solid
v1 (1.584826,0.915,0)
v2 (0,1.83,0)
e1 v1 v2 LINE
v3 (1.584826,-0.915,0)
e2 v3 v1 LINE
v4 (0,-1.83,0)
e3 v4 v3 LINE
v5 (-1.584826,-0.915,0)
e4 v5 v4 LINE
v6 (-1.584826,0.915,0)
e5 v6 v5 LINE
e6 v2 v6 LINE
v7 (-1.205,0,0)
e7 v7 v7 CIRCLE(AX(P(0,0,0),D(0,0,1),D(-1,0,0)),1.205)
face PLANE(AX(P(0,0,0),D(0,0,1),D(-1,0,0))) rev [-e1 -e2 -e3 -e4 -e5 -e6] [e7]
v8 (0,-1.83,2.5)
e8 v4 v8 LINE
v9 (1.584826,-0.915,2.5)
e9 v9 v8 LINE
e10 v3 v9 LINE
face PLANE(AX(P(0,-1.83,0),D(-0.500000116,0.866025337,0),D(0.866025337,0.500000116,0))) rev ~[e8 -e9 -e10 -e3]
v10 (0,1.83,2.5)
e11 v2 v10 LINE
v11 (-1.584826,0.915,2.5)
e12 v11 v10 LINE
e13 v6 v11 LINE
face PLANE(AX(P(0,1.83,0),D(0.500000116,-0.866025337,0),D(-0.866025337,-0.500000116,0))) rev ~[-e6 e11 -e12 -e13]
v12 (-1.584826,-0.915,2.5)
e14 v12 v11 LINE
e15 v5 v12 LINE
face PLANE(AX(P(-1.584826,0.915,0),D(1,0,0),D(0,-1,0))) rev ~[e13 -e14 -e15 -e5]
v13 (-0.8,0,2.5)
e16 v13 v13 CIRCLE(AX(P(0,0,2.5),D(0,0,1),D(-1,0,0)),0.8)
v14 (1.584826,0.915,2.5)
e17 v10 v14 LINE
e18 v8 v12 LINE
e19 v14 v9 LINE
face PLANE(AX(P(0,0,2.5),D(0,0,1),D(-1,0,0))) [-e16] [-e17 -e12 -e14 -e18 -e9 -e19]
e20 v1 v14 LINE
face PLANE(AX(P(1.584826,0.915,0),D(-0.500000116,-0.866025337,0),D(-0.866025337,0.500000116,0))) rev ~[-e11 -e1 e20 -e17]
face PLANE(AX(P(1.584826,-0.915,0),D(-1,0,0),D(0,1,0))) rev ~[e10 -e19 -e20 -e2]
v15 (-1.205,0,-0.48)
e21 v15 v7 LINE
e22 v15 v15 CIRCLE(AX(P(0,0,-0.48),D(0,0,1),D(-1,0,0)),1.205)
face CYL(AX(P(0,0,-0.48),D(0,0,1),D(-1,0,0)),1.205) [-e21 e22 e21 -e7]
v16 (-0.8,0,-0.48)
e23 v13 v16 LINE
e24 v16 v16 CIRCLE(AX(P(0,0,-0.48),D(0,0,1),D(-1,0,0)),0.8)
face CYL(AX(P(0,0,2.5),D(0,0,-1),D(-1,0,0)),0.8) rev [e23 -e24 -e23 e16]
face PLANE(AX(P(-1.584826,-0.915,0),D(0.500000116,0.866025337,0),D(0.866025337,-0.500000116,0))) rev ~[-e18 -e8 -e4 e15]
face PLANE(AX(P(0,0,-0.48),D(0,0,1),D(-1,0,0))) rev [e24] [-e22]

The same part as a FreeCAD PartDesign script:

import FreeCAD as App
import Part
import Sketcher
Q = App.Units.Quantity


def add_polygon(sketch, points):
    """Adds a closed chain of lines whose ends are joined by coincident constraints."""
    first, n = sketch.GeometryCount, len(points)
    for a, b in zip(points, points[1:] + points[:1]):
        sketch.addGeometry(Part.LineSegment(App.Vector(*a, 0), App.Vector(*b, 0)), False)
    for i in range(n):
        sketch.addConstraint(Sketcher.Constraint("Coincident", first + i, 2, first + (i + 1) % n, 1))

doc = App.newDocument("Part")
body = doc.addObject("PartDesign::Body", "Body")

# Sketch on XZ plane
sketch1 = body.newObject("Sketcher::SketchObject", "Sketch")
sketch1.AttachmentSupport = (doc.getObject("XZ_Plane"), [""])
sketch1.MapMode = "FlatFace"
add_polygon(sketch1, [(-0.8, -0.48), (-0.8, 2.5), (-1.83, 2.5), (-1.83, 0), (-1.21, 0), (-1.21, -0.48)])  # lines 0-5
sketch1.addConstraint([
    Sketcher.Constraint("Vertical", 0),
    Sketcher.Constraint("Horizontal", 1),
    Sketcher.Constraint("Vertical", 2),
    Sketcher.Constraint("Horizontal", 3),
    Sketcher.Constraint("Vertical", 4),
    Sketcher.Constraint("Horizontal", 5),
    Sketcher.Constraint("PointOnObject", 2, 2, -1),
    Sketcher.Constraint("DistanceY", 2, 2, 2, 1, Q("2.5 mm")),
    Sketcher.Constraint("DistanceX", 1, 2, 1, 1, Q("1.03 mm")),
    Sketcher.Constraint("DistanceY", 0, 1, 0, 2, Q("2.98 mm")),
    Sketcher.Constraint("DistanceX", 0, 2, -1, 1, Q("0.8 mm")),
    Sketcher.Constraint("DistanceX", 3, 1, 3, 2, Q("0.625 mm")),
])
revolution = body.newObject("PartDesign::Revolution", "Revolution")
revolution.Profile = sketch1
revolution.ReferenceAxis = (sketch1, ["V_Axis"])
revolution.Angle = 360

# Sketch on XY plane
sketch2 = body.newObject("Sketcher::SketchObject", "Sketch001")
sketch2.AttachmentSupport = (doc.getObject("XY_Plane"), [""])
sketch2.MapMode = "FlatFace"
sketch2.addGeometry(Part.Circle(App.Vector(0, 0, 0), App.Vector(0, 0, 1), 3), False)  # 0
add_polygon(sketch2, [(-1.6, 0.9), (0, 1.8), (1.6, 0.9), (1.6, -0.9), (0, -1.8), (-1.6, -0.9)])  # lines 1-6
sketch2.addConstraint([
    Sketcher.Constraint("Vertical", 3),
    Sketcher.Constraint("Vertical", 6),
    Sketcher.Constraint("Coincident", 0, 3, -1, 1),
    Sketcher.Constraint("Symmetric", 1, 2, 4, 2, -1, 1),
    Sketcher.Constraint("Symmetric", 2, 2, 5, 2, -1, 1),
    Sketcher.Constraint("PointOnObject", 1, 2, -2),
    Sketcher.Constraint("Parallel", 1, 4),
    Sketcher.Constraint("Horizontal", 3, 2, 5, 2),
    Sketcher.Constraint("Diameter", 0, Q("6 mm")),
    Sketcher.Constraint("Angle", 1, Q("30.000008 deg")),
    Sketcher.Constraint("DistanceY", 3, 2, 3, 1, Q("1.83 mm")),
    Sketcher.Constraint("Distance", 1, Q("1.83 mm")),
])
pocket1 = body.newObject("PartDesign::Pocket", "Pocket")
pocket1.Profile = sketch2
pocket1.Type = "ThroughAll"
pocket1.Midplane = True

doc.recompute()
